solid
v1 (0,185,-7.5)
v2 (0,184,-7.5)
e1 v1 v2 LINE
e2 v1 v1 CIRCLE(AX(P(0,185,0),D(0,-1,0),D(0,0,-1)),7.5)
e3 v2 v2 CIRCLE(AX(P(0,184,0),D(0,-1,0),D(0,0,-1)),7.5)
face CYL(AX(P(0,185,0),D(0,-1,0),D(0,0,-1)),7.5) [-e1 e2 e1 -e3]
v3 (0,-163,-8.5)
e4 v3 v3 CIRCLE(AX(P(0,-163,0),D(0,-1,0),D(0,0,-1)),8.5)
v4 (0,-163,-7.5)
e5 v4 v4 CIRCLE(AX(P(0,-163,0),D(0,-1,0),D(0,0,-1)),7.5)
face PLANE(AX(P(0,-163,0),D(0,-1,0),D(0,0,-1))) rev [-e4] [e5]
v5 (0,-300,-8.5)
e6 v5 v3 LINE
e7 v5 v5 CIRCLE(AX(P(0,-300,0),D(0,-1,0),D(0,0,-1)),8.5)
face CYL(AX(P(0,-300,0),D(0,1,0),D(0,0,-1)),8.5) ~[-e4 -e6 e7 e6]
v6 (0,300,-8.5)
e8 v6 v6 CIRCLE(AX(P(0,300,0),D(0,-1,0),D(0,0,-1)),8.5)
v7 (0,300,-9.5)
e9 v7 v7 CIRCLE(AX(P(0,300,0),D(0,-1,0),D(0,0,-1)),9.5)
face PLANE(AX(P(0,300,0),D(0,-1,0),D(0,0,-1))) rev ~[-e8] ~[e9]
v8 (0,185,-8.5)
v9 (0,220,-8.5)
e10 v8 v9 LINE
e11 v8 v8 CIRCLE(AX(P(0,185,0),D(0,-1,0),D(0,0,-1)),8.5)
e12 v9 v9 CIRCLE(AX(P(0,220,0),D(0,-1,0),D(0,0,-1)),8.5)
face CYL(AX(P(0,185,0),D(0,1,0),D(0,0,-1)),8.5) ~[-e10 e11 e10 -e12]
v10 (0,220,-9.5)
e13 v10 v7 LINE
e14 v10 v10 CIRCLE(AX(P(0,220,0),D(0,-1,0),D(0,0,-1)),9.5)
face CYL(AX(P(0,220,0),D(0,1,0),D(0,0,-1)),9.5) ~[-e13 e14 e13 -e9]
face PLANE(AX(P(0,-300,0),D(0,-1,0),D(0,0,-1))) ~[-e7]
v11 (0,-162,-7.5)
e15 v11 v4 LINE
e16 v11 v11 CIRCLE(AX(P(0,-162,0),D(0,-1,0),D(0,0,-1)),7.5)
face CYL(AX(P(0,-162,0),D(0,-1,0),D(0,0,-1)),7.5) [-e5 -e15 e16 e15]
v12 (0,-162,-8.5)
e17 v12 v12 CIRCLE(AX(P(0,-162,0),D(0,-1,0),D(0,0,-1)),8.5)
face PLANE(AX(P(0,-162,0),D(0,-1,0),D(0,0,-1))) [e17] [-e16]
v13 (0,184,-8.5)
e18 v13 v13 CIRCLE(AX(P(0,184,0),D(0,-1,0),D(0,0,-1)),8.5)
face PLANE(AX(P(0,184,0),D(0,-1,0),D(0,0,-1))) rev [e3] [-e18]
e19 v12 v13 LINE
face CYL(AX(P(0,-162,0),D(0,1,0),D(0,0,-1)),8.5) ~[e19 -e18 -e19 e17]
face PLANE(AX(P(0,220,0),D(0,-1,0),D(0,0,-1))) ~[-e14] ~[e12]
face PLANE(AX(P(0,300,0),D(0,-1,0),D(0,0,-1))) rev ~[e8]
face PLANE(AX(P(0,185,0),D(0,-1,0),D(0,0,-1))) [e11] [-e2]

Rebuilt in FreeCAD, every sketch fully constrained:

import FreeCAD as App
import Part
import Sketcher
from FreeCAD import Vector

doc = App.newDocument("Part")
body = doc.addObject("PartDesign::Body", "Body")

sketch1 = doc.addObject("Sketcher::SketchObject", "Sketch")
body.addObject(sketch1)
sketch1.AttachmentSupport = (doc.YZ_Plane, [""])
sketch1.MapMode = "FlatFace"
sketch1.addGeometry([
    Part.LineSegment(Vector(300, -9.5, 0), Vector(300, 0, 0)),
    Part.LineSegment(Vector(300, 0, 0), Vector(-300, 0, 0)),
    Part.LineSegment(Vector(-300, 0, 0), Vector(-300, -8.5, 0)),
    Part.LineSegment(Vector(-300, -8.5, 0), Vector(-163, -8.5, 0)),
    Part.LineSegment(Vector(-163, -8.5, 0), Vector(-163, -7.5, 0)),
    Part.LineSegment(Vector(-163, -7.5, 0), Vector(-162, -7.5, 0)),
    Part.LineSegment(Vector(-162, -7.5, 0), Vector(-162, -8.5, 0)),
    Part.LineSegment(Vector(-162, -8.5, 0), Vector(184, -8.5, 0)),
    Part.LineSegment(Vector(184, -8.5, 0), Vector(184, -7.5, 0)),
    Part.LineSegment(Vector(184, -7.5, 0), Vector(185, -7.5, 0)),
    Part.LineSegment(Vector(185, -7.5, 0), Vector(185, -8.5, 0)),
    Part.LineSegment(Vector(185, -8.5, 0), Vector(220, -8.5, 0)),
    Part.LineSegment(Vector(220, -8.5, 0), Vector(220, -9.5, 0)),
    Part.LineSegment(Vector(220, -9.5, 0), Vector(300, -9.5, 0)),
], False)
sketch1.addConstraint([
    Sketcher.Constraint("Coincident", 0, 2, 1, 1),
    Sketcher.Constraint("Coincident", 1, 2, 2, 1),
    Sketcher.Constraint("Coincident", 2, 2, 3, 1),
    Sketcher.Constraint("Coincident", 3, 2, 4, 1),
    Sketcher.Constraint("Coincident", 4, 2, 5, 1),
    Sketcher.Constraint("Coincident", 5, 2, 6, 1),
    Sketcher.Constraint("Coincident", 6, 2, 7, 1),
    Sketcher.Constraint("Coincident", 7, 2, 8, 1),
    Sketcher.Constraint("Coincident", 8, 2, 9, 1),
    Sketcher.Constraint("Coincident", 9, 2, 10, 1),
    Sketcher.Constraint("Coincident", 10, 2, 11, 1),
    Sketcher.Constraint("Coincident", 11, 2, 12, 1),
    Sketcher.Constraint("Coincident", 12, 2, 13, 1),
    Sketcher.Constraint("Coincident", 13, 2, 0, 1),
    Sketcher.Constraint("Vertical", 0),
    Sketcher.Constraint("Horizontal", 1),
    Sketcher.Constraint("Vertical", 2),
    Sketcher.Constraint("Horizontal", 3),
    Sketcher.Constraint("Vertical", 4),
    Sketcher.Constraint("Horizontal", 5),
    Sketcher.Constraint("Vertical", 6),
    Sketcher.Constraint("Horizontal", 7),
    Sketcher.Constraint("Vertical", 8),
    Sketcher.Constraint("Horizontal", 9),
    Sketcher.Constraint("Vertical", 10),
    Sketcher.Constraint("Horizontal", 11),
    Sketcher.Constraint("Vertical", 12),
    Sketcher.Constraint("Horizontal", 13),
    Sketcher.Constraint("Symmetric", 0, 2, 1, 2, -1, 1),
    Sketcher.Constraint("Horizontal", 3, 2, 6, 2),
    Sketcher.Constraint("Horizontal", 5, 2, 8, 2),
    Sketcher.Constraint("Horizontal", 7, 2, 10, 2),
    Sketcher.Constraint("Equal", 5, 9),
    Sketcher.Constraint("Equal", 9, 4),
    Sketcher.Constraint("Equal", 10, 12),
    Sketcher.Constraint("DistanceX", 1, 2, 1, 1, 600.0),
    Sketcher.Constraint("DistanceX", 5, 1, 5, 2, 1.0),
    Sketcher.Constraint("DistanceX", 13, 1, 13, 2, 80.0),
    Sketcher.Constraint("DistanceY", 2, 2, 2, 1, 8.5),
    Sketcher.Constraint("DistanceX", 5, 2, 0, 2, 462.0),
    Sketcher.Constraint("DistanceX", 9, 2, 0, 2, 115.0),
])
revolution = doc.addObject("PartDesign::Revolution", "Revolution")
body.addObject(revolution)
revolution.Profile = sketch1
revolution.ReferenceAxis = (sketch1, ["H_Axis"])
revolution.Angle = 360

doc.recompute()
